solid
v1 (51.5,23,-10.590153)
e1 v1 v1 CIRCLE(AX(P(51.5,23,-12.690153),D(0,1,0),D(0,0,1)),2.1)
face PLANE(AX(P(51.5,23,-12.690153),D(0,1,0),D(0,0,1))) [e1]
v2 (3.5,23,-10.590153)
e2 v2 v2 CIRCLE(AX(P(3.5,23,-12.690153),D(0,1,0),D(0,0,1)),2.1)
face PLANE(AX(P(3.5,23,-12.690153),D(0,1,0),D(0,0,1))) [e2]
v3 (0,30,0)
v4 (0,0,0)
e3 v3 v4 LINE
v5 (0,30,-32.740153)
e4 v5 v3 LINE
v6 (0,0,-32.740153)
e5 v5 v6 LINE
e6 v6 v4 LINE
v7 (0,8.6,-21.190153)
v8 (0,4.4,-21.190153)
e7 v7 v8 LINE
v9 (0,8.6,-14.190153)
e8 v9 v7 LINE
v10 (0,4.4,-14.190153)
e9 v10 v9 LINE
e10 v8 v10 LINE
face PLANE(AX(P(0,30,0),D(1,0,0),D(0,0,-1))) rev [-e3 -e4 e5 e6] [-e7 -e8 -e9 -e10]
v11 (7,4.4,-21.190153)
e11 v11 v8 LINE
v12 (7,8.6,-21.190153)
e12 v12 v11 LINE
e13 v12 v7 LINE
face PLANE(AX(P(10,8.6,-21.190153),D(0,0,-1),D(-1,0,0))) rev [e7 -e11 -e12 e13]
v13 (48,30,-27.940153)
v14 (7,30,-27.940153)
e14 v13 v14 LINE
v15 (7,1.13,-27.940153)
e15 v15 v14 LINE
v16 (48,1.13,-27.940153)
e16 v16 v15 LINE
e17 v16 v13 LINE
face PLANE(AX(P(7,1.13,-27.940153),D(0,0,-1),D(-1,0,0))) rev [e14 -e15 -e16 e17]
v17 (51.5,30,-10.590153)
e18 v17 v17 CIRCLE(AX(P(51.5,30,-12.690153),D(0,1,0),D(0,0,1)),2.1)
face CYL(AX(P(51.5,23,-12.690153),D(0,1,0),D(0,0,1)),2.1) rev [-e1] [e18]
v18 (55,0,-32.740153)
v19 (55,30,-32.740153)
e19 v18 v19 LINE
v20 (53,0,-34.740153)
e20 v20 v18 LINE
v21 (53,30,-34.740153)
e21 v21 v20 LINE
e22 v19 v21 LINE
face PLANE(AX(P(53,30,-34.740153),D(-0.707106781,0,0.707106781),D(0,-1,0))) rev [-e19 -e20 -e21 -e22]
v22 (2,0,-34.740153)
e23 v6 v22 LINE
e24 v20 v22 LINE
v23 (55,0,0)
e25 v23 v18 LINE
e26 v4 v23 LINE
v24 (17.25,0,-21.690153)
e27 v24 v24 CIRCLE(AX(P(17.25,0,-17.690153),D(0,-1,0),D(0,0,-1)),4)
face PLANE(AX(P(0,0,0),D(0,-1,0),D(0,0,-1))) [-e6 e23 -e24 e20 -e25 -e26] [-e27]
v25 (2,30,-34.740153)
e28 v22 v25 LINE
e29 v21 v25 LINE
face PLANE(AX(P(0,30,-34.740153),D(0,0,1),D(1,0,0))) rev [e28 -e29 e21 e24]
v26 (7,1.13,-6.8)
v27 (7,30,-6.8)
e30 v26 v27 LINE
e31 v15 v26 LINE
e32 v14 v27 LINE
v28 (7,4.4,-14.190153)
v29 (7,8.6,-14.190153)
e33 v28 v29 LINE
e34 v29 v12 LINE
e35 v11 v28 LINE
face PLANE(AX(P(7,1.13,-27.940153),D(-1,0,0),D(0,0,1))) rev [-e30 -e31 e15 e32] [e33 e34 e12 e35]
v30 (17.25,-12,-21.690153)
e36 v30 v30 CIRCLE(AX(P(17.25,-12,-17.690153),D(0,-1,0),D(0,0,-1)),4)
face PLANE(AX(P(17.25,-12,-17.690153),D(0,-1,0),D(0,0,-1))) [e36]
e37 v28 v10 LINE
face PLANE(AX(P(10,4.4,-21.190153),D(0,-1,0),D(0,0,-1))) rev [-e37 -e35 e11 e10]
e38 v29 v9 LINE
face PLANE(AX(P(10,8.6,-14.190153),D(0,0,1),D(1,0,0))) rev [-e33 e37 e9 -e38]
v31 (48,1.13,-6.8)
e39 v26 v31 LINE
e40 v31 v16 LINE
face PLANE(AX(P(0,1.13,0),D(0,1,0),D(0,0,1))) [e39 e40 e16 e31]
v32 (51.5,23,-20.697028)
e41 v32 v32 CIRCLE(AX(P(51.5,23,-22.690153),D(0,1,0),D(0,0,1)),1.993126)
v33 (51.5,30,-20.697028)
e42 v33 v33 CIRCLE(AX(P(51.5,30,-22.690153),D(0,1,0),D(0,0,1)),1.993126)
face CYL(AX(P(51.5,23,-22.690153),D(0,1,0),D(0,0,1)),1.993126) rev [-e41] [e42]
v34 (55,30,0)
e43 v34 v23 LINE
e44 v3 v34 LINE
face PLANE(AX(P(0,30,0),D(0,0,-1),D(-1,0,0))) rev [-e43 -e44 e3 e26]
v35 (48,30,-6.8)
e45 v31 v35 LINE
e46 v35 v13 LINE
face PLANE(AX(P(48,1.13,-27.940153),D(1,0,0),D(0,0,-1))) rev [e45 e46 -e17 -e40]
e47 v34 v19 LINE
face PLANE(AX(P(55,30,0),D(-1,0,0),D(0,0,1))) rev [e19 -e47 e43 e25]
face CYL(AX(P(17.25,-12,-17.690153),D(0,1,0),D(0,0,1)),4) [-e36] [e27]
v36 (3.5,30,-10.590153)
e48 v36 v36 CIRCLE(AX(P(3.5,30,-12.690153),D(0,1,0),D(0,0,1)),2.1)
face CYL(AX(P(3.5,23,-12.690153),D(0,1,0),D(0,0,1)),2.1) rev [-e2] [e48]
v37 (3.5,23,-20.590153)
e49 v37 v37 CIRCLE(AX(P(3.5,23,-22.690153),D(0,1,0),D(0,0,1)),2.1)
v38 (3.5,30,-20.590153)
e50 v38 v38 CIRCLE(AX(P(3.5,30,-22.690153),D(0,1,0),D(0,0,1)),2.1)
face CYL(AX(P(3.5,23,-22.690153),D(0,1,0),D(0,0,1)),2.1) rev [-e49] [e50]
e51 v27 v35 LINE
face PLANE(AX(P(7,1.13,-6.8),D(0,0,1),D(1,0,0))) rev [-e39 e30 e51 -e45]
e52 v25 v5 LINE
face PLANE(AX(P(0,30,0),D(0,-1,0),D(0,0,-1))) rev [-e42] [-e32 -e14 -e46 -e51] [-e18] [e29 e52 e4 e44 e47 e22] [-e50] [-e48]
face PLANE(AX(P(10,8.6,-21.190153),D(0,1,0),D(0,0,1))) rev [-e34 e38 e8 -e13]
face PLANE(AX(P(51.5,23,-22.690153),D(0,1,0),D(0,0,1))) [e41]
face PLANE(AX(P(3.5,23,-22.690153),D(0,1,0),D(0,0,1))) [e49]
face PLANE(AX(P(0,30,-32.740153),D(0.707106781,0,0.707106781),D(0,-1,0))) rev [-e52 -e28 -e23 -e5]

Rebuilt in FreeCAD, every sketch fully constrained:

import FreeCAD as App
import Part
import Sketcher
from FreeCAD import Vector


def edges_at(feature, points):
    """Names of the edges that pass closest to the given points."""
    edges = feature.Shape.Edges
    near = lambda p: min(range(len(edges)), key=lambda i: edges[i].distToShape(Part.Vertex(*p))[0])
    return sorted({f"Edge{near(p) + 1}" for p in points})

doc = App.newDocument("Part")
params = doc.addObject("Spreadsheet::Sheet", "Params")
for row, (alias, value) in enumerate([
    ("sketch1_width", "55 mm"),
    ("pad1_length", "30 mm"),
    ("sketch2_width", "41 mm"),
    ("pocket1_length", "28.87 mm"),
    ("sketch3_height", "7 mm"),
    ("sketch3_width", "4.2 mm"),
    ("pocket2_length", "10 mm"),
    ("sketch4_diameter", "4.2 mm"),
    ("pocket3_length", "7 mm"),
    ("sketch5_diameter", "8 mm"),
    ("pad2_length", "12 mm"),
    ("chamfer_size", "2 mm"),
], start=1):
    params.set(f"A{row}", alias)
    params.set(f"B{row}", "=" + value)
    params.setAlias(f"B{row}", alias)

body = doc.addObject("PartDesign::Body", "Body")

# Sketch on XZ plane
sketch1 = doc.addObject("Sketcher::SketchObject", "Sketch")
body.addObject(sketch1)
sketch1.AttachmentSupport = (doc.XZ_Plane, [""])
sketch1.MapMode = "FlatFace"
sketch1.addGeometry(Part.LineSegment(Vector(0, -35, 0), Vector(0, 0, 0)), False)
sketch1.addGeometry(Part.LineSegment(Vector(0, 0, 0), Vector(55, 0, 0)), False)
sketch1.addGeometry(Part.LineSegment(Vector(55, 0, 0), Vector(55, -35, 0)), False)
sketch1.addGeometry(Part.LineSegment(Vector(55, -35, 0), Vector(0, -35, 0)), False)
sketch1.addConstraint(Sketcher.Constraint("Coincident", 0, 2, 1, 1))
sketch1.addConstraint(Sketcher.Constraint("Coincident", 1, 2, 2, 1))
sketch1.addConstraint(Sketcher.Constraint("Coincident", 2, 2, 3, 1))
sketch1.addConstraint(Sketcher.Constraint("Coincident", 3, 2, 0, 1))
sketch1.addConstraint(Sketcher.Constraint("Vertical", 0))
sketch1.addConstraint(Sketcher.Constraint("Horizontal", 1))
sketch1.addConstraint(Sketcher.Constraint("Vertical", 2))
sketch1.addConstraint(Sketcher.Constraint("Horizontal", 3))
sketch1.addConstraint(Sketcher.Constraint("Coincident", 0, 2, -1, 1))
sketch1.addConstraint(Sketcher.Constraint("DistanceX", 1, 1, 1, 2, 55.0))
sketch1.addConstraint(Sketcher.Constraint("DistanceY", 0, 1, 0, 2, 34.740153))
sketch1.setExpression("Constraints[9]", "Params.sketch1_width")
pad1 = doc.addObject("PartDesign::Pad", "Pad")
body.addObject(pad1)
pad1.Profile = sketch1
pad1.setExpression("Length", "Params.pad1_length")
pad1.Reversed = True

# Sketch on XZ plane
sketch2 = doc.addObject("Sketcher::SketchObject", "Sketch001")
body.addObject(sketch2)
sketch2.AttachmentSupport = (doc.XZ_Plane, [""])
sketch2.MapMode = "FlatFace"
sketch2.AttachmentOffset = App.Placement(Vector(0, 0, -30), App.Rotation())
sketch2.addGeometry(Part.LineSegment(Vector(7, -28, 0), Vector(7, -7, 0)), False)
sketch2.addGeometry(Part.LineSegment(Vector(7, -7, 0), Vector(48, -7, 0)), False)
sketch2.addGeometry(Part.LineSegment(Vector(48, -7, 0), Vector(48, -28, 0)), False)
sketch2.addGeometry(Part.LineSegment(Vector(48, -28, 0), Vector(7, -28, 0)), False)
sketch2.addConstraint(Sketcher.Constraint("Coincident", 0, 2, 1, 1))
sketch2.addConstraint(Sketcher.Constraint("Coincident", 1, 2, 2, 1))
sketch2.addConstraint(Sketcher.Constraint("Coincident", 2, 2, 3, 1))
sketch2.addConstraint(Sketcher.Constraint("Coincident", 3, 2, 0, 1))
sketch2.addConstraint(Sketcher.Constraint("Vertical", 0))
sketch2.addConstraint(Sketcher.Constraint("Horizontal", 1))
sketch2.addConstraint(Sketcher.Constraint("Vertical", 2))
sketch2.addConstraint(Sketcher.Constraint("Horizontal", 3))
sketch2.addConstraint(Sketcher.Constraint("DistanceX", 1, 1, 1, 2, 41.0))
sketch2.addConstraint(Sketcher.Constraint("DistanceX", -1, 1, 0, 2, 7.0))
sketch2.addConstraint(Sketcher.Constraint("DistanceY", 0, 2, -1, 1, 6.8))
sketch2.addConstraint(Sketcher.Constraint("DistanceY", 0, 1, 0, 2, 21.140153))
sketch2.setExpression("Constraints[8]", "Params.sketch2_width")
pocket1 = doc.addObject("PartDesign::Pocket", "Pocket")
body.addObject(pocket1)
pocket1.Profile = sketch2
pocket1.setExpression("Length", "Params.pocket1_length")
pocket1.Reversed = True

# Sketch on YZ plane
sketch3 = doc.addObject("Sketcher::SketchObject", "Sketch002")
body.addObject(sketch3)
sketch3.AttachmentSupport = (doc.YZ_Plane, [""])
sketch3.MapMode = "FlatFace"
sketch3.addGeometry(Part.LineSegment(Vector(8.6, -21.2, 0), Vector(4.4, -21.2, 0)), False)
sketch3.addGeometry(Part.LineSegment(Vector(4.4, -21.2, 0), Vector(4.4, -14.2, 0)), False)
sketch3.addGeometry(Part.LineSegment(Vector(4.4, -14.2, 0), Vector(8.6, -14.2, 0)), False)
sketch3.addGeometry(Part.LineSegment(Vector(8.6, -14.2, 0), Vector(8.6, -21.2, 0)), False)
sketch3.addConstraint(Sketcher.Constraint("Coincident", 0, 2, 1, 1))
sketch3.addConstraint(Sketcher.Constraint("Coincident", 1, 2, 2, 1))
sketch3.addConstraint(Sketcher.Constraint("Coincident", 2, 2, 3, 1))
sketch3.addConstraint(Sketcher.Constraint("Coincident", 3, 2, 0, 1))
sketch3.addConstraint(Sketcher.Constraint("Horizontal", 0))
sketch3.addConstraint(Sketcher.Constraint("Vertical", 1))
sketch3.addConstraint(Sketcher.Constraint("Horizontal", 2))
sketch3.addConstraint(Sketcher.Constraint("Vertical", 3))
sketch3.addConstraint(Sketcher.Constraint("DistanceY", 1, 1, 1, 2, 7.0))
sketch3.addConstraint(Sketcher.Constraint("DistanceX", 0, 2, 0, 1, 4.2))
sketch3.addConstraint(Sketcher.Constraint("DistanceX", -1, 1, 0, 2, 4.4))
sketch3.addConstraint(Sketcher.Constraint("DistanceY", 0, 2, -1, 1, 21.190153))
sketch3.setExpression("Constraints[8]", "Params.sketch3_height")
sketch3.setExpression("Constraints[9]", "Params.sketch3_width")
pocket2 = doc.addObject("PartDesign::Pocket", "Pocket001")
body.addObject(pocket2)
pocket2.Profile = sketch3
pocket2.setExpression("Length", "Params.pocket2_length")
pocket2.Reversed = True

# Sketch on XZ plane
sketch4 = doc.addObject("Sketcher::SketchObject", "Sketch003")
body.addObject(sketch4)
sketch4.AttachmentSupport = (doc.XZ_Plane, [""])
sketch4.MapMode = "FlatFace"
sketch4.AttachmentOffset = App.Placement(Vector(0, 0, -30), App.Rotation())
sketch4.addGeometry(Part.Circle(Vector(3.5, -22.7, 0), Vector(0, 0, 1), 2.1), False)
sketch4.addGeometry(Part.Circle(Vector(3.5, -12.7, 0), Vector(0, 0, 1), 2.1), False)
sketch4.addGeometry(Part.Circle(Vector(51.5, -12.7, 0), Vector(0, 0, 1), 2.1), False)
sketch4.addGeometry(Part.Circle(Vector(51.5, -22.7, 0), Vector(0, 0, 1), 2), False)
sketch4.addConstraint(Sketcher.Constraint("Equal", 0, 1))
sketch4.addConstraint(Sketcher.Constraint("Equal", 1, 2))
sketch4.addConstraint(Sketcher.Constraint("Horizontal", 1, 3, 2, 3))
sketch4.addConstraint(Sketcher.Constraint("Horizontal", 0, 3, 3, 3))
sketch4.addConstraint(Sketcher.Constraint("Vertical", 0, 3, 1, 3))
sketch4.addConstraint(Sketcher.Constraint("Vertical", 2, 3, 3, 3))
sketch4.addConstraint(Sketcher.Constraint("Diameter", 0, 4.2))
sketch4.addConstraint(Sketcher.Constraint("DistanceY", 0, 3, 1, 3, 10.0))
sketch4.addConstraint(Sketcher.Constraint("DistanceX", 1, 3, 2, 3, 48.0))
sketch4.addConstraint(Sketcher.Constraint("DistanceX", -1, 1, 0, 3, 3.5))
sketch4.addConstraint(Sketcher.Constraint("Diameter", 3, 3.986251))
sketch4.addConstraint(Sketcher.Constraint("DistanceY", 0, 3, -1, 1, 22.690153))
sketch4.setExpression("Constraints[6]", "Params.sketch4_diameter")
pocket3 = doc.addObject("PartDesign::Pocket", "Pocket002")
body.addObject(pocket3)
pocket3.Profile = sketch4
pocket3.setExpression("Length", "Params.pocket3_length")
pocket3.Reversed = True

# Sketch on XZ plane
sketch5 = doc.addObject("Sketcher::SketchObject", "Sketch004")
body.addObject(sketch5)
sketch5.AttachmentSupport = (doc.XZ_Plane, [""])
sketch5.MapMode = "FlatFace"
sketch5.addGeometry(Part.Circle(Vector(17.2, -17.7, 0), Vector(0, 0, 1), 4), False)
sketch5.addConstraint(Sketcher.Constraint("Diameter", 0, 8.0))
sketch5.addConstraint(Sketcher.Constraint("DistanceX", -1, 1, 0, 3, 17.25))
sketch5.addConstraint(Sketcher.Constraint("DistanceY", 0, 3, -1, 1, 17.690153))
sketch5.setExpression("Constraints[0]", "Params.sketch5_diameter")
pad2 = doc.addObject("PartDesign::Pad", "Pad001")
body.addObject(pad2)
pad2.Profile = sketch5
pad2.setExpression("Length", "Params.pad2_length")
doc.recompute()

chamfer = doc.addObject("PartDesign::Chamfer", "Chamfer")
body.addObject(chamfer)
chamfer.Base = (pad2, edges_at(pad2, [(0, 15, -34.74), (55, 15, -34.74)]))
chamfer.setExpression("Size", "Params.chamfer_size")

doc.recompute()
